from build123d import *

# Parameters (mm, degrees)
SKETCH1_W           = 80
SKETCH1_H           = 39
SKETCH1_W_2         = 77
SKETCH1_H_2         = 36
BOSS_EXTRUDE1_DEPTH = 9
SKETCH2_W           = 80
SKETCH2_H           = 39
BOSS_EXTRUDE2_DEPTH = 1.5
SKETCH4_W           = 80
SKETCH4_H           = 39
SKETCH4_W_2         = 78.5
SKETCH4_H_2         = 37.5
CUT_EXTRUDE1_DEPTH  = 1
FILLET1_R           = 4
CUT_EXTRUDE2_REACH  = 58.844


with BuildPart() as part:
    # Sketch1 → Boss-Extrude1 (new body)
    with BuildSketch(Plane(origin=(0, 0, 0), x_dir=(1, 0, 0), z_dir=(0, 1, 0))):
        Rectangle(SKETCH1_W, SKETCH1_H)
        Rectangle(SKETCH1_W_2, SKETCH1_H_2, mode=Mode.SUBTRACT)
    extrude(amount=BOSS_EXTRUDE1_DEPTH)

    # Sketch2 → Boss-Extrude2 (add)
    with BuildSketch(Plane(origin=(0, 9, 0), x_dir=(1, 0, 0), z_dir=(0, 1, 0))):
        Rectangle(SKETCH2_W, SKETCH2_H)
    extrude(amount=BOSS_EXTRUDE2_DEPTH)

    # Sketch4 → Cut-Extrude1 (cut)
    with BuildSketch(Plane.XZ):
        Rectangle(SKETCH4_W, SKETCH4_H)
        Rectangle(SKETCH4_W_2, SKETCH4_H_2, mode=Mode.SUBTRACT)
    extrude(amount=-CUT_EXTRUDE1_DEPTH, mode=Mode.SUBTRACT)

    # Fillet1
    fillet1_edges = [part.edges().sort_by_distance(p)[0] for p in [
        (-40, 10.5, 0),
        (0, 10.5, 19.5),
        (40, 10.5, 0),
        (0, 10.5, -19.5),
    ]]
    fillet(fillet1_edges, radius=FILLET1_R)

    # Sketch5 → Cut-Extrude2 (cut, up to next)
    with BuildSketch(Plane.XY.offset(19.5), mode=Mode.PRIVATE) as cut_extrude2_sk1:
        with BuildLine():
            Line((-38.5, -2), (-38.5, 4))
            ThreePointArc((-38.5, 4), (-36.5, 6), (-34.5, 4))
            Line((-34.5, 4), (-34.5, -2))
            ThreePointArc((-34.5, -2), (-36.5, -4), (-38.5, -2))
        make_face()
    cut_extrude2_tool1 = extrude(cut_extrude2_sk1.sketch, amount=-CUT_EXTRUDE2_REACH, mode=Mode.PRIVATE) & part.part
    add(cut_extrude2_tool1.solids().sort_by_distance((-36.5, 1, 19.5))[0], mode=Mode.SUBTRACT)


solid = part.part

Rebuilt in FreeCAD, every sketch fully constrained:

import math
import FreeCAD as App
import Part
import Sketcher

V = App.Vector


def edges_at(feature, points):
    """Names of the edges that pass closest to the given points."""
    edges = feature.Shape.Edges
    near = lambda p: min(range(len(edges)), key=lambda i: edges[i].distToShape(Part.Vertex(*p))[0])
    return sorted({f"Edge{near(p) + 1}" for p in points})


def add_polygon(sketch, points):
    """Adds a closed chain of lines whose ends are joined by coincident constraints."""
    first, n = sketch.GeometryCount, len(points)
    for a, b in zip(points, points[1:] + points[:1]):
        sketch.addGeometry(Part.LineSegment(App.Vector(*a, 0), App.Vector(*b, 0)), False)
    for i in range(n):
        sketch.addConstraint(Sketcher.Constraint("Coincident", first + i, 2, first + (i + 1) % n, 1))

doc = App.newDocument("Part")
body = doc.addObject("PartDesign::Body", "Body")

# Sketch on XZ plane
sketch1 = doc.addObject("Sketcher::SketchObject", "Sketch")
body.addObject(sketch1)
sketch1.AttachmentSupport = (doc.XZ_Plane, [""])
sketch1.MapMode = "FlatFace"
add_polygon(sketch1, [(-40, -19.5), (-40, 19.5), (40, 19.5), (40, -19.5)])  # lines 0-3
add_polygon(sketch1, [(38.5, 18), (-38.5, 18), (-38.5, -18), (38.5, -18)])  # lines 4-7
sketch1.addConstraint([
    Sketcher.Constraint("Vertical", 0),
    Sketcher.Constraint("Horizontal", 1),
    Sketcher.Constraint("Vertical", 2),
    Sketcher.Constraint("Horizontal", 3),
    Sketcher.Constraint("Horizontal", 4),
    Sketcher.Constraint("Vertical", 5),
    Sketcher.Constraint("Horizontal", 6),
    Sketcher.Constraint("Vertical", 7),
    Sketcher.Constraint("Symmetric", 0, 2, 2, 2, -1, 1),
    Sketcher.Constraint("Symmetric", 4, 2, 6, 2, -1, 1),
    Sketcher.Constraint("DistanceX", 1, 1, 1, 2, 80.0),
    Sketcher.Constraint("DistanceX", 4, 2, 4, 1, 77.0),
    Sketcher.Constraint("DistanceY", 0, 1, 0, 2, 39.0),
    Sketcher.Constraint("DistanceY", 5, 2, 5, 1, 36.0),
])
pad1 = doc.addObject("PartDesign::Pad", "Pad")
body.addObject(pad1)
pad1.Profile = sketch1
pad1.Length = 9
pad1.Reversed = True

# Sketch on XZ plane
sketch2 = doc.addObject("Sketcher::SketchObject", "Sketch001")
body.addObject(sketch2)
sketch2.AttachmentSupport = (doc.XZ_Plane, [""])
sketch2.MapMode = "FlatFace"
sketch2.AttachmentOffset = App.Placement(V(0, 0, -9), App.Rotation())
add_polygon(sketch2, [(-40, -19.5), (-40, 19.5), (40, 19.5), (40, -19.5)])  # lines 0-3
sketch2.addConstraint([
    Sketcher.Constraint("Vertical", 0),
    Sketcher.Constraint("Horizontal", 1),
    Sketcher.Constraint("Vertical", 2),
    Sketcher.Constraint("Horizontal", 3),
    Sketcher.Constraint("Symmetric", 0, 2, 2, 2, -1, 1),
    Sketcher.Constraint("DistanceX", 1, 1, 1, 2, 80.0),
    Sketcher.Constraint("DistanceY", 0, 1, 0, 2, 39.0),
])
pad2 = doc.addObject("PartDesign::Pad", "Pad001")
body.addObject(pad2)
pad2.Profile = sketch2
pad2.Length = 1.5
pad2.Reversed = True

# Sketch on XZ plane
sketch3 = doc.addObject("Sketcher::SketchObject", "Sketch002")
body.addObject(sketch3)
sketch3.AttachmentSupport = (doc.XZ_Plane, [""])
sketch3.MapMode = "FlatFace"
add_polygon(sketch3, [(-40, 19.5), (-40, -19.5), (40, -19.5), (40, 19.5)])  # lines 0-3
add_polygon(sketch3, [(39.25, -18.75), (-39.25, -18.75), (-39.25, 18.75), (39.25, 18.75)])  # lines 4-7
sketch3.addConstraint([
    Sketcher.Constraint("Vertical", 0),
    Sketcher.Constraint("Horizontal", 1),
    Sketcher.Constraint("Vertical", 2),
    Sketcher.Constraint("Horizontal", 3),
    Sketcher.Constraint("Horizontal", 4),
    Sketcher.Constraint("Vertical", 5),
    Sketcher.Constraint("Horizontal", 6),
    Sketcher.Constraint("Vertical", 7),
    Sketcher.Constraint("Symmetric", 0, 2, 2, 2, -1, 1),
    Sketcher.Constraint("Symmetric", 4, 2, 6, 2, -1, 1),
    Sketcher.Constraint("DistanceX", 1, 1, 1, 2, 80.0),
    Sketcher.Constraint("DistanceY", 0, 2, 0, 1, 39.0),
    Sketcher.Constraint("DistanceX", 4, 2, 4, 1, 78.5),
    Sketcher.Constraint("DistanceY", 5, 1, 5, 2, 37.5),
])
pocket1 = doc.addObject("PartDesign::Pocket", "Pocket")
body.addObject(pocket1)
pocket1.Profile = sketch3
pocket1.Length = 1
doc.recompute()

fillet = doc.addObject("PartDesign::Fillet", "Fillet")
body.addObject(fillet)
fillet.Base = (pocket1, edges_at(pocket1, [
    (-40, 10.5, 0),
    (0, 10.5, 19.5),
    (40, 10.5, 0),
    (0, 10.5, -19.5),
]))
fillet.Radius = 4

# Sketch on XY plane
sketch4 = doc.addObject("Sketcher::SketchObject", "Sketch003")
body.addObject(sketch4)
sketch4.AttachmentSupport = (doc.XY_Plane, [""])
sketch4.MapMode = "FlatFace"
sketch4.AttachmentOffset = App.Placement(V(0, 0, 19.5), App.Rotation())
sketch4.addGeometry([
    Part.LineSegment(V(-38.5, 4, 0), V(-38.5, -2, 0)),
    Part.ArcOfCircle(Part.Circle(V(-36.5, -2, 0), V(0, 0, 1), 2), math.radians(180), math.radians(360)),
    Part.LineSegment(V(-34.5, -2, 0), V(-34.5, 4, 0)),
    Part.ArcOfCircle(Part.Circle(V(-36.5, 4, 0), V(0, 0, 1), 2), math.radians(0), math.radians(180)),
], False)
sketch4.addConstraint([
    Sketcher.Constraint("Tangent", 0, 2, 1, 1),
    Sketcher.Constraint("Tangent", 1, 2, 2, 1),
    Sketcher.Constraint("Tangent", 2, 2, 3, 1),
    Sketcher.Constraint("Tangent", 3, 2, 0, 1),
    Sketcher.Constraint("Vertical", 0),
    Sketcher.Constraint("Vertical", 2),
    Sketcher.Constraint("Radius", 1, 2.0),
    Sketcher.Constraint("DistanceY", 0, 2, 0, 1, 6.0),
    Sketcher.Constraint("DistanceY", 1, 3, -1, 1, 2.0),
    Sketcher.Constraint("DistanceX", 1, 3, -1, 1, 36.5),
])
pocket2 = doc.addObject("PartDesign::Pocket", "Pocket001")
body.addObject(pocket2)
pocket2.Profile = sketch4
pocket2.Length = 1.5

doc.recompute()
